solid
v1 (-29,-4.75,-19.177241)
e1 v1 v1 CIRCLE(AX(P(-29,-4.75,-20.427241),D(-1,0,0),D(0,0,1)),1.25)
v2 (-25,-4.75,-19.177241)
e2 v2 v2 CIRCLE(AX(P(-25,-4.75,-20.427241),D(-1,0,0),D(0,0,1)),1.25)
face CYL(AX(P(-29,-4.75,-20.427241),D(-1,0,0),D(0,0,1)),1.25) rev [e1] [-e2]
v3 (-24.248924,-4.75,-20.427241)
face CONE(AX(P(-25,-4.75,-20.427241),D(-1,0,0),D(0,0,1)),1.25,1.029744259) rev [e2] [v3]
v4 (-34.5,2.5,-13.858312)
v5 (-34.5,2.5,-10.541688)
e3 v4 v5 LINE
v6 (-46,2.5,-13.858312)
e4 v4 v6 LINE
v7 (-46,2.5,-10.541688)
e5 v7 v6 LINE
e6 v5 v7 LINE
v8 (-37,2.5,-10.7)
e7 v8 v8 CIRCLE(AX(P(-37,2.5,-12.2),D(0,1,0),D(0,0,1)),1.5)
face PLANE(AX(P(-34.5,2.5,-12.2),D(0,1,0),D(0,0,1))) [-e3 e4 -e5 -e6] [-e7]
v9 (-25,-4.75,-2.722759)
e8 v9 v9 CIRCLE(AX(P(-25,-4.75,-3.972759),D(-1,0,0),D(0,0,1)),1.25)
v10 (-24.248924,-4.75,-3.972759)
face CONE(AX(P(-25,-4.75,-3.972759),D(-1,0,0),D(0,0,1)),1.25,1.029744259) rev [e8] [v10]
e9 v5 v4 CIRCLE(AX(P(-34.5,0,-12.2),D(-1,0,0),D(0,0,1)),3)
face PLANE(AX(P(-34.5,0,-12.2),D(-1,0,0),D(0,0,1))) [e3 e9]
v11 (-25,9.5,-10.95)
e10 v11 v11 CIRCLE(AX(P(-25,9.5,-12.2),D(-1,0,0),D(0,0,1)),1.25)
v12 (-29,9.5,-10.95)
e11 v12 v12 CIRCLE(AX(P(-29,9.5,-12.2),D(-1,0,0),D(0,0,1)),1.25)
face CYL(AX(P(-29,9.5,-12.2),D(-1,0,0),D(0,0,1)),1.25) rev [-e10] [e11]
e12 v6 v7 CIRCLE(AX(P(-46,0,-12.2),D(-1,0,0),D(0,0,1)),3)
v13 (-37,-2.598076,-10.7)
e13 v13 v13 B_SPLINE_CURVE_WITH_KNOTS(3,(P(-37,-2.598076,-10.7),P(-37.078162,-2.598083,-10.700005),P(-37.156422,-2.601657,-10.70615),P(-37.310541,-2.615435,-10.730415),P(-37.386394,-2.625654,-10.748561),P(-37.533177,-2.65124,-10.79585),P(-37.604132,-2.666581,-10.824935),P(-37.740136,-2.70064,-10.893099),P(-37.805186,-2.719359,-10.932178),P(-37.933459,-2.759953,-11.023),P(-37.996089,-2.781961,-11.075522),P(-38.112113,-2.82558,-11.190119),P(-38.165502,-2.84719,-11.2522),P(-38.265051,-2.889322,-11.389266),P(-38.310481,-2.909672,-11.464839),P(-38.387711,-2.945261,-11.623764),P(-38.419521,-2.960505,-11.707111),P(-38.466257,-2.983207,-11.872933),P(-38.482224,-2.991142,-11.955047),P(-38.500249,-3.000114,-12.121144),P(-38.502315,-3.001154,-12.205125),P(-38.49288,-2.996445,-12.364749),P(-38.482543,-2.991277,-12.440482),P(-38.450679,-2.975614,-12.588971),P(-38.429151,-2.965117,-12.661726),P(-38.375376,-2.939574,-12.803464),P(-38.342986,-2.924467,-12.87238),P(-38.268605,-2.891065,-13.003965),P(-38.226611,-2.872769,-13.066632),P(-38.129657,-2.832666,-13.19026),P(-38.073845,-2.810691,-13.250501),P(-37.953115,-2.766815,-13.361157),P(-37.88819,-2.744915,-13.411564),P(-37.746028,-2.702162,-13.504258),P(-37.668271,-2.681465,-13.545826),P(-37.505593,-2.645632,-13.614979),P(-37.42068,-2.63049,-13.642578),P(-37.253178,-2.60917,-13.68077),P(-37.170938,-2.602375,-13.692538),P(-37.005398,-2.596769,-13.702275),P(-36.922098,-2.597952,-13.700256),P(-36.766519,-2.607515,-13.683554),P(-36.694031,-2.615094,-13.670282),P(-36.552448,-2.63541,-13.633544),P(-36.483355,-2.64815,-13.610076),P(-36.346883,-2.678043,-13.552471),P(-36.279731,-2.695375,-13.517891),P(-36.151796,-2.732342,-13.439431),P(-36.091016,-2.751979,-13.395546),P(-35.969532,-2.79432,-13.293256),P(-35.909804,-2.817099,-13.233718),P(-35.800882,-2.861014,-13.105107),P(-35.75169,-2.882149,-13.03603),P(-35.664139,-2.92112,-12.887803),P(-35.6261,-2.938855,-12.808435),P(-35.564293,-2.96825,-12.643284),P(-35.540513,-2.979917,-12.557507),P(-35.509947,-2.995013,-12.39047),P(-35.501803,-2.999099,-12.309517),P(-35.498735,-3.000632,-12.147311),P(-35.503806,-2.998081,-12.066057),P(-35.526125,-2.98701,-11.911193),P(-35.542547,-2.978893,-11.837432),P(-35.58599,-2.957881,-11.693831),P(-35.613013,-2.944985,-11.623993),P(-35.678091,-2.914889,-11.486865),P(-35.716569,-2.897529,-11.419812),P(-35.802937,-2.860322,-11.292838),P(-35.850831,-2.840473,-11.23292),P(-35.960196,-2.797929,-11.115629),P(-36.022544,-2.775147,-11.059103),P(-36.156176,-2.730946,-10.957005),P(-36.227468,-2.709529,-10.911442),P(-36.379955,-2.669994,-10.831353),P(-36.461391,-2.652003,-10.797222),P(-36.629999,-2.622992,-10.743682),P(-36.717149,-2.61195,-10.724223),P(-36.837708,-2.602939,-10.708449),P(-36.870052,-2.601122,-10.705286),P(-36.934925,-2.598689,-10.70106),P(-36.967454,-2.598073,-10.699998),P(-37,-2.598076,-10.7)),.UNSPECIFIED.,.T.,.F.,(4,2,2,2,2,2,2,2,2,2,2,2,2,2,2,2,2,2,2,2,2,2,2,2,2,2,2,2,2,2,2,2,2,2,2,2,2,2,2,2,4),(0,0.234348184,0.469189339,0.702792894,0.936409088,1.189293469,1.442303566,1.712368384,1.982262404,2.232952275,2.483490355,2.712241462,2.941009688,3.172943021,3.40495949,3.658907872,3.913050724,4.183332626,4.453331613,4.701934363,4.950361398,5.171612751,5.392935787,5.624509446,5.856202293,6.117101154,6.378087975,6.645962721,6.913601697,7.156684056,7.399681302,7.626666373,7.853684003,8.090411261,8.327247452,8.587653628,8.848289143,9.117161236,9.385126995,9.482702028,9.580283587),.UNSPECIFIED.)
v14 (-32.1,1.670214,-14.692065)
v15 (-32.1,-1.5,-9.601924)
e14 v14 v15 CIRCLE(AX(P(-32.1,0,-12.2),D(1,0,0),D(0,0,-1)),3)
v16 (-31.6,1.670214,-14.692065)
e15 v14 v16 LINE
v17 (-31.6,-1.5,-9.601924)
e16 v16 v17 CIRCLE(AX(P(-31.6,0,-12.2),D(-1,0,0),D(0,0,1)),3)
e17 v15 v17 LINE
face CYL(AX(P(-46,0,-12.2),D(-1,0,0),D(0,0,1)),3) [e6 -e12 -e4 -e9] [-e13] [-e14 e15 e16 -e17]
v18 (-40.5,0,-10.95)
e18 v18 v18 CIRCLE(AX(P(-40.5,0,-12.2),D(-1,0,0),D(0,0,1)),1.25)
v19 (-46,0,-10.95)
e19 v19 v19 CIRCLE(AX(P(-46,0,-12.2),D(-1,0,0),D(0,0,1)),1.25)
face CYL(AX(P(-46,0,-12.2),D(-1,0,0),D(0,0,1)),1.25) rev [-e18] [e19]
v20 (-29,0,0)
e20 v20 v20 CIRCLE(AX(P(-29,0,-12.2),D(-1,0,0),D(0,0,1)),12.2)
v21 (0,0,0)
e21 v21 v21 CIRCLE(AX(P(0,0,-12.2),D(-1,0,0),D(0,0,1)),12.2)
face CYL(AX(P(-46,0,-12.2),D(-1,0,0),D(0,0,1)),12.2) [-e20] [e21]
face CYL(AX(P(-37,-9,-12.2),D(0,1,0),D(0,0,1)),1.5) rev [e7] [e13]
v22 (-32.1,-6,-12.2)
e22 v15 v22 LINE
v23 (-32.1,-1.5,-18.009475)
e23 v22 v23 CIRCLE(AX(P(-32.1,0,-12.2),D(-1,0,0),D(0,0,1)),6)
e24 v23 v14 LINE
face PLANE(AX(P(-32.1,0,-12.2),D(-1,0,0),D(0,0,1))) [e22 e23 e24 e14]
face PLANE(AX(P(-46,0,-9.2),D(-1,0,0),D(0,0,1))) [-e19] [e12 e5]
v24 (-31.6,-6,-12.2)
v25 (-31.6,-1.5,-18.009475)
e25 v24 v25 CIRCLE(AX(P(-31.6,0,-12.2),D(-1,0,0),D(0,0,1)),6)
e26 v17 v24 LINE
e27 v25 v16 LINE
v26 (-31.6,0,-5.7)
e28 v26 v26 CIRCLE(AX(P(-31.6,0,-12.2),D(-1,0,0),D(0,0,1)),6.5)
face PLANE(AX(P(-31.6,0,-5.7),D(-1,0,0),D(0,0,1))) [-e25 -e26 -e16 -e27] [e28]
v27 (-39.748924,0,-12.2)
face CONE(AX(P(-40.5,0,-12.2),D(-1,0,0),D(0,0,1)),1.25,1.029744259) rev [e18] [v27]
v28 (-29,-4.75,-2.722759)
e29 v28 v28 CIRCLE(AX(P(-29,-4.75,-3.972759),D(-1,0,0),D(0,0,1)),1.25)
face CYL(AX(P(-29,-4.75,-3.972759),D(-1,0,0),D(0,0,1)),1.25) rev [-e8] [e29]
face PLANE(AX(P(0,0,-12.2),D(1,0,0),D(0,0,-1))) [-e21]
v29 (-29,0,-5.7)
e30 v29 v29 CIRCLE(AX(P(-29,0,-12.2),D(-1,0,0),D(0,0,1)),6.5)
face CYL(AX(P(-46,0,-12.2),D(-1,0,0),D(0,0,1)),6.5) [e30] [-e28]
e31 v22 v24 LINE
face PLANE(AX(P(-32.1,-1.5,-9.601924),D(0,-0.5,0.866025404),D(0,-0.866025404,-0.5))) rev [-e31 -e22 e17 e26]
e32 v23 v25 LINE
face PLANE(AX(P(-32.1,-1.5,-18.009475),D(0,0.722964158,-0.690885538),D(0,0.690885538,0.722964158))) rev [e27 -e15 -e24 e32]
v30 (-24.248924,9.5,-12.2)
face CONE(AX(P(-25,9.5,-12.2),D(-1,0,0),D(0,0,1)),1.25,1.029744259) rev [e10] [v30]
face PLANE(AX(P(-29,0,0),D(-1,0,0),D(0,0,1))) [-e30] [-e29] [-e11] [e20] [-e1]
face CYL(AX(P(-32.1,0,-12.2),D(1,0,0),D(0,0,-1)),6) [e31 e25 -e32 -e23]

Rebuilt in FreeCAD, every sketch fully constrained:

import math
import FreeCAD as App
import Part
import Sketcher
Q = App.Units.Quantity

doc = App.newDocument("Part")
params = doc.addObject("Spreadsheet::Sheet", "Params")
for row, (alias, value) in enumerate([
    ("sketch1_width", "29 mm"),
    ("sketch1_width2", "46 mm"),
    ("sketch1_height", "3 mm"),
    ("sketch1_width3", "14.4 mm"),
    ("sketch1_height2", "12.2 mm"),
    ("revolution_angle", "360 deg"),
    ("sketch2_radius", "3 mm"),
    ("pocket1_length", "11.5 mm"),
    ("sketch3_diameter", "2.5 mm"),
    ("hole_diameter", "2.5 mm"),
    ("hole_depth", "5.5 mm"),
    ("sketch4_diameter", "3 mm"),
    ("pocket2_length", "11.5 mm"),
    ("sketch5_diameter", "2.5 mm"),
    ("hole2_diameter", "2.5 mm"),
    ("hole2_depth", "4 mm"),
    ("sketch6_radius", "6 mm"),
    ("sketch6_radius2", "3 mm"),
    ("pad1_length", "0.5 mm"),
], start=1):
    params.set(f"A{row}", alias)
    params.set(f"B{row}", "=" + value)
    params.setAlias(f"B{row}", alias)

body = doc.addObject("PartDesign::Body", "Body")

# Sketch on XZ plane
sketch1 = body.newObject("Sketcher::SketchObject", "Sketch")
sketch1.AttachmentSupport = (doc.getObject("XZ_Plane"), [""])
sketch1.MapMode = "FlatFace"
sketch1.addGeometry([
    Part.LineSegment(App.Vector(-29, 0, 0), App.Vector(0, 0, 0)),  # 0
    Part.LineSegment(App.Vector(0, 0, 0), App.Vector(0, -12.2, 0)),  # 1
    Part.LineSegment(App.Vector(0, -12.2, 0), App.Vector(-46, -12.2, 0)),  # 2
    Part.LineSegment(App.Vector(-46, -12.2, 0), App.Vector(-46, -9.2, 0)),  # 3
    Part.LineSegment(App.Vector(-46, -9.2, 0), App.Vector(-31.6, -9.2, 0)),  # 4
    Part.LineSegment(App.Vector(-31.6, -9.2, 0), App.Vector(-31.6, -5.7, 0)),  # 5
    Part.LineSegment(App.Vector(-31.6, -5.7, 0), App.Vector(-29, -5.7, 0)),  # 6
    Part.LineSegment(App.Vector(-29, -5.7, 0), App.Vector(-29, 0, 0)),  # 7
], False)
sketch1.addGeometry(Part.LineSegment(App.Vector(-46, -12.2, 0), App.Vector(0, -12.2, 0)), True)  # axis
sketch1.addConstraint([
    Sketcher.Constraint("Coincident", 0, 2, 1, 1),
    Sketcher.Constraint("Coincident", 1, 2, 2, 1),
    Sketcher.Constraint("Coincident", 2, 2, 3, 1),
    Sketcher.Constraint("Coincident", 3, 2, 4, 1),
    Sketcher.Constraint("Coincident", 4, 2, 5, 1),
    Sketcher.Constraint("Coincident", 5, 2, 6, 1),
    Sketcher.Constraint("Coincident", 6, 2, 7, 1),
    Sketcher.Constraint("Coincident", 7, 2, 0, 1),
    Sketcher.Constraint("Horizontal", 0),
    Sketcher.Constraint("Vertical", 1),
    Sketcher.Constraint("Horizontal", 2),
    Sketcher.Constraint("Vertical", 3),
    Sketcher.Constraint("Horizontal", 4),
    Sketcher.Constraint("Vertical", 5),
    Sketcher.Constraint("Horizontal", 6),
    Sketcher.Constraint("Vertical", 7),
    Sketcher.Constraint("Horizontal", 8),
    Sketcher.Constraint("Coincident", 0, 2, -1, 1),
    Sketcher.Constraint("Coincident", 8, 1, 2, 2),
    Sketcher.Constraint("PointOnObject", 8, 2, -2),
    Sketcher.Constraint("DistanceX", 0, 1, 0, 2, Q("29 mm")),
    Sketcher.Constraint("DistanceX", 2, 2, 2, 1, Q("46 mm")),
    Sketcher.Constraint("DistanceY", 3, 1, 3, 2, Q("3 mm")),
    Sketcher.Constraint("DistanceX", 4, 1, 4, 2, Q("14.4 mm")),
    Sketcher.Constraint("DistanceY", 1, 2, 1, 1, Q("12.2 mm")),
    Sketcher.Constraint("DistanceY", 5, 1, 5, 2, Q("3.5 mm")),
])
sketch1.setExpression("Constraints[20]", "Params.sketch1_width")
sketch1.setExpression("Constraints[21]", "Params.sketch1_width2")
sketch1.setExpression("Constraints[22]", "Params.sketch1_height")
sketch1.setExpression("Constraints[23]", "Params.sketch1_width3")
sketch1.setExpression("Constraints[24]", "Params.sketch1_height2")
revolution = body.newObject("PartDesign::Revolution", "Revolution")
revolution.Profile = sketch1
revolution.ReferenceAxis = (sketch1, ["Axis0"])
revolution.setExpression("Angle", "Params.revolution_angle")

# Sketch on YZ plane
sketch2 = body.newObject("Sketcher::SketchObject", "Sketch001")
sketch2.AttachmentSupport = (doc.getObject("YZ_Plane"), [""])
sketch2.MapMode = "FlatFace"
sketch2.AttachmentOffset = App.Placement(App.Vector(0, 0, -46), App.Rotation())
sketch2.addGeometry([
    Part.ArcOfCircle(Part.Circle(App.Vector(0, -12.2, 0), App.Vector(0, 0, 1), 3), math.radians(-34), math.radians(34)),
    Part.LineSegment(App.Vector(2.5, -13.9, 0), App.Vector(2.5, -10.5, 0)),
], False)
sketch2.addConstraint([
    Sketcher.Constraint("Coincident", 0, 1, 1, 1),
    Sketcher.Constraint("Coincident", 1, 2, 0, 2),
    Sketcher.Constraint("Vertical", 1),
    Sketcher.Constraint("PointOnObject", 0, 3, -2),
    Sketcher.Constraint("Radius", 0, Q("3 mm")),
    Sketcher.Constraint("DistanceY", 0, 3, -1, 1, Q("12.2 mm")),
    Sketcher.Constraint("DistanceX", -1, 1, 0, 1, Q("2.5 mm")),
])
sketch2.setExpression("Constraints[4]", "Params.sketch2_radius")
pocket1 = body.newObject("PartDesign::Pocket", "Pocket")
pocket1.Profile = sketch2
pocket1.setExpression("Length", "Params.pocket1_length")
pocket1.Reversed = True

# Sketch on YZ plane
sketch3 = body.newObject("Sketcher::SketchObject", "Sketch002")
sketch3.AttachmentSupport = (doc.getObject("YZ_Plane"), [""])
sketch3.MapMode = "FlatFace"
sketch3.AttachmentOffset = App.Placement(App.Vector(0, 0, -46), App.Rotation())
sketch3.addGeometry(Part.Circle(App.Vector(0, -12.2, 0), App.Vector(0, 0, 1), 1.2), False)
sketch3.addConstraint([
    Sketcher.Constraint("PointOnObject", 0, 3, -2),
    Sketcher.Constraint("Diameter", 0, Q("2.5 mm")),
    Sketcher.Constraint("DistanceY", 0, 3, -1, 1, Q("12.2 mm")),
])
sketch3.setExpression("Constraints[1]", "Params.sketch3_diameter")
doc.recompute()
hole = body.newObject("PartDesign::Hole", "Hole")
hole.Profile = sketch3
hole.ThreadType = "None"
hole.setExpression("Diameter", "Params.hole_diameter")
hole.DepthType = "Dimension"
hole.setExpression("Depth", "Params.hole_depth")
hole.DrillPoint = "Angled"
hole.DrillPointAngle = 118
hole.Reversed = True

# Sketch on XZ plane
sketch4 = body.newObject("Sketcher::SketchObject", "Sketch003")
sketch4.AttachmentSupport = (doc.getObject("XZ_Plane"), [""])
sketch4.MapMode = "FlatFace"
sketch4.AttachmentOffset = App.Placement(App.Vector(0, 0, -2.5), App.Rotation())
sketch4.addGeometry(Part.Circle(App.Vector(-37, -12.2, 0), App.Vector(0, 0, 1), 1.5), False)
sketch4.addConstraint([
    Sketcher.Constraint("Diameter", 0, Q("3 mm")),
    Sketcher.Constraint("DistanceX", 0, 3, -1, 1, Q("37 mm")),
    Sketcher.Constraint("DistanceY", 0, 3, -1, 1, Q("12.2 mm")),
])
sketch4.setExpression("Constraints[0]", "Params.sketch4_diameter")
pocket2 = body.newObject("PartDesign::Pocket", "Pocket001")
pocket2.Profile = sketch4
pocket2.setExpression("Length", "Params.pocket2_length")
pocket2.Reversed = True

# Sketch on YZ plane
sketch5 = body.newObject("Sketcher::SketchObject", "Sketch004")
sketch5.AttachmentSupport = (doc.getObject("YZ_Plane"), [""])
sketch5.MapMode = "FlatFace"
sketch5.AttachmentOffset = App.Placement(App.Vector(0, 0, -29), App.Rotation())
sketch5.addGeometry([
    Part.Circle(App.Vector(9.5, -12.2, 0), App.Vector(0, 0, 1), 1.2),
    Part.Circle(App.Vector(-4.8, -20.4, 0), App.Vector(0, 0, 1), 1.2),
    Part.Circle(App.Vector(-4.8, -4, 0), App.Vector(0, 0, 1), 1.2),
], False)
sketch5.addConstraint([
    Sketcher.Constraint("Equal", 0, 1),
    Sketcher.Constraint("Equal", 1, 2),
    Sketcher.Constraint("Vertical", 1, 3, 2, 3),
    Sketcher.Constraint("Diameter", 0, Q("2.5 mm")),
    Sketcher.Constraint("DistanceX", -1, 1, 0, 3, Q("9.5 mm")),
    Sketcher.Constraint("DistanceY", 0, 3, -1, 1, Q("12.2 mm")),
    Sketcher.Constraint("DistanceX", 1, 3, -1, 1, Q("4.75 mm")),
    Sketcher.Constraint("DistanceY", 1, 3, -1, 1, Q("20.427241 mm")),
    Sketcher.Constraint("DistanceY", 2, 3, -1, 1, Q("3.972759 mm")),
])
sketch5.setExpression("Constraints[3]", "Params.sketch5_diameter")
doc.recompute()
hole2 = body.newObject("PartDesign::Hole", "Hole001")
hole2.Profile = sketch5
hole2.ThreadType = "None"
hole2.setExpression("Diameter", "Params.hole2_diameter")
hole2.DepthType = "Dimension"
hole2.setExpression("Depth", "Params.hole2_depth")
hole2.DrillPoint = "Angled"
hole2.DrillPointAngle = 118
hole2.Reversed = True

# Sketch on YZ plane
sketch6 = body.newObject("Sketcher::SketchObject", "Sketch005")
sketch6.AttachmentSupport = (doc.getObject("YZ_Plane"), [""])
sketch6.MapMode = "FlatFace"
sketch6.AttachmentOffset = App.Placement(App.Vector(0, 0, -32.1), App.Rotation())
sketch6.addGeometry([
    Part.LineSegment(App.Vector(-1.5, -9.6, 0), App.Vector(-6, -12.2, 0)),
    Part.ArcOfCircle(Part.Circle(App.Vector(0, -12.2, 0), App.Vector(0, 0, 1), 6), math.radians(-104), math.radians(180)),
    Part.LineSegment(App.Vector(-1.5, -18, 0), App.Vector(1.7, -14.7, 0)),
    Part.ArcOfCircle(Part.Circle(App.Vector(0, -12.2, 0), App.Vector(0, 0, 1), 3), math.radians(-56), math.radians(120)),
], False)
sketch6.addConstraint([
    Sketcher.Constraint("Coincident", 0, 2, 1, 2),
    Sketcher.Constraint("Coincident", 1, 1, 2, 1),
    Sketcher.Constraint("Coincident", 2, 2, 3, 1),
    Sketcher.Constraint("Tangent", 3, 2, 0, 1),
    Sketcher.Constraint("Coincident", 3, 3, 1, 3),
    Sketcher.Constraint("PointOnObject", 1, 3, -2),
    Sketcher.Constraint("Horizontal", 3, 3, 0, 2),
    Sketcher.Constraint("Vertical", 1, 1, 3, 2),
    Sketcher.Constraint("Radius", 1, Q("6 mm")),
    Sketcher.Constraint("Radius", 3, Q("3 mm")),
    Sketcher.Constraint("DistanceY", 1, 3, -1, 1, Q("12.2 mm")),
    Sketcher.Constraint("DistanceY", 1, 1, 2, 2, Q("3.31741 mm")),
])
sketch6.setExpression("Constraints[8]", "Params.sketch6_radius")
sketch6.setExpression("Constraints[9]", "Params.sketch6_radius2")
pad1 = body.newObject("PartDesign::Pad", "Pad")
pad1.Profile = sketch6
pad1.setExpression("Length", "Params.pad1_length")

doc.recompute()
